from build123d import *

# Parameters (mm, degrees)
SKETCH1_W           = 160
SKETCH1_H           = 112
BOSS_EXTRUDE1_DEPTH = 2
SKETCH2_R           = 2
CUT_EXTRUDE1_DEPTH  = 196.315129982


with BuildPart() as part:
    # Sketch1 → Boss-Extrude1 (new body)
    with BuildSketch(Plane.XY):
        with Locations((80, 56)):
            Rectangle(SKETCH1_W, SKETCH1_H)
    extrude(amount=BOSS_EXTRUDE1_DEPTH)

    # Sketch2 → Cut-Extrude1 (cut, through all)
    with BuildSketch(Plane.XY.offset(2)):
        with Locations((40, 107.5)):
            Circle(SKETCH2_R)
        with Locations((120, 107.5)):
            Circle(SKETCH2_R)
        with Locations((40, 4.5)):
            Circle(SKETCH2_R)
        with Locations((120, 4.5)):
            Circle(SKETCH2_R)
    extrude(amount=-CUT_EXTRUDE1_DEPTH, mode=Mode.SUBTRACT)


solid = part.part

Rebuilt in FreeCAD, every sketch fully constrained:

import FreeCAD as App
import Part
import Sketcher
from FreeCAD import Vector

doc = App.newDocument("Part")
body = doc.addObject("PartDesign::Body", "Body")

# Sketch on XY plane
sketch1 = body.newObject("Sketcher::SketchObject", "Sketch")
sketch1.AttachmentSupport = (doc.getObject("XY_Plane"), [""])
sketch1.MapMode = "FlatFace"
sketch1.addGeometry([
    Part.LineSegment(Vector(0, 112, 0), Vector(0, 0, 0)),
    Part.LineSegment(Vector(0, 0, 0), Vector(160, 0, 0)),
    Part.LineSegment(Vector(160, 0, 0), Vector(160, 112, 0)),
    Part.LineSegment(Vector(160, 112, 0), Vector(0, 112, 0)),
], False)
sketch1.addConstraint([
    Sketcher.Constraint("Coincident", 0, 2, 1, 1),
    Sketcher.Constraint("Coincident", 1, 2, 2, 1),
    Sketcher.Constraint("Coincident", 2, 2, 3, 1),
    Sketcher.Constraint("Coincident", 3, 2, 0, 1),
    Sketcher.Constraint("Vertical", 0),
    Sketcher.Constraint("Horizontal", 1),
    Sketcher.Constraint("Vertical", 2),
    Sketcher.Constraint("Horizontal", 3),
    Sketcher.Constraint("Coincident", 0, 2, -1, 1),
    Sketcher.Constraint("DistanceX", 1, 1, 1, 2, 160.0),
    Sketcher.Constraint("DistanceY", 0, 2, 0, 1, 112.0),
])
pad1 = body.newObject("PartDesign::Pad", "Pad")
pad1.Profile = sketch1
pad1.Length = 2

# Sketch on XY plane
sketch2 = body.newObject("Sketcher::SketchObject", "Sketch001")
sketch2.AttachmentSupport = (doc.getObject("XY_Plane"), [""])
sketch2.MapMode = "FlatFace"
sketch2.AttachmentOffset = App.Placement(Vector(0, 0, 2), App.Rotation())
sketch2.addGeometry([
    Part.Circle(Vector(40, 107.5, 0), Vector(0, 0, 1), 2),
    Part.Circle(Vector(120, 107.5, 0), Vector(0, 0, 1), 2),
    Part.Circle(Vector(40, 4.5, 0), Vector(0, 0, 1), 2),
    Part.Circle(Vector(120, 4.5, 0), Vector(0, 0, 1), 2),
], False)
sketch2.addConstraint([
    Sketcher.Constraint("Equal", 0, 1),
    Sketcher.Constraint("Equal", 1, 2),
    Sketcher.Constraint("Equal", 2, 3),
    Sketcher.Constraint("Horizontal", 0, 3, 1, 3),
    Sketcher.Constraint("Horizontal", 2, 3, 3, 3),
    Sketcher.Constraint("Vertical", 0, 3, 2, 3),
    Sketcher.Constraint("Vertical", 1, 3, 3, 3),
    Sketcher.Constraint("Diameter", 0, 4.0),
    Sketcher.Constraint("DistanceX", -1, 1, 0, 3, 40.0),
    Sketcher.Constraint("DistanceX", -1, 1, 1, 3, 120.0),
    Sketcher.Constraint("DistanceY", 2, 3, 0, 3, 103.0),
    Sketcher.Constraint("DistanceY", -1, 1, 0, 3, 107.5),
])
pocket1 = body.newObject("PartDesign::Pocket", "Pocket")
pocket1.Profile = sketch2
pocket1.Type = "ThroughAll"

doc.recompute()
